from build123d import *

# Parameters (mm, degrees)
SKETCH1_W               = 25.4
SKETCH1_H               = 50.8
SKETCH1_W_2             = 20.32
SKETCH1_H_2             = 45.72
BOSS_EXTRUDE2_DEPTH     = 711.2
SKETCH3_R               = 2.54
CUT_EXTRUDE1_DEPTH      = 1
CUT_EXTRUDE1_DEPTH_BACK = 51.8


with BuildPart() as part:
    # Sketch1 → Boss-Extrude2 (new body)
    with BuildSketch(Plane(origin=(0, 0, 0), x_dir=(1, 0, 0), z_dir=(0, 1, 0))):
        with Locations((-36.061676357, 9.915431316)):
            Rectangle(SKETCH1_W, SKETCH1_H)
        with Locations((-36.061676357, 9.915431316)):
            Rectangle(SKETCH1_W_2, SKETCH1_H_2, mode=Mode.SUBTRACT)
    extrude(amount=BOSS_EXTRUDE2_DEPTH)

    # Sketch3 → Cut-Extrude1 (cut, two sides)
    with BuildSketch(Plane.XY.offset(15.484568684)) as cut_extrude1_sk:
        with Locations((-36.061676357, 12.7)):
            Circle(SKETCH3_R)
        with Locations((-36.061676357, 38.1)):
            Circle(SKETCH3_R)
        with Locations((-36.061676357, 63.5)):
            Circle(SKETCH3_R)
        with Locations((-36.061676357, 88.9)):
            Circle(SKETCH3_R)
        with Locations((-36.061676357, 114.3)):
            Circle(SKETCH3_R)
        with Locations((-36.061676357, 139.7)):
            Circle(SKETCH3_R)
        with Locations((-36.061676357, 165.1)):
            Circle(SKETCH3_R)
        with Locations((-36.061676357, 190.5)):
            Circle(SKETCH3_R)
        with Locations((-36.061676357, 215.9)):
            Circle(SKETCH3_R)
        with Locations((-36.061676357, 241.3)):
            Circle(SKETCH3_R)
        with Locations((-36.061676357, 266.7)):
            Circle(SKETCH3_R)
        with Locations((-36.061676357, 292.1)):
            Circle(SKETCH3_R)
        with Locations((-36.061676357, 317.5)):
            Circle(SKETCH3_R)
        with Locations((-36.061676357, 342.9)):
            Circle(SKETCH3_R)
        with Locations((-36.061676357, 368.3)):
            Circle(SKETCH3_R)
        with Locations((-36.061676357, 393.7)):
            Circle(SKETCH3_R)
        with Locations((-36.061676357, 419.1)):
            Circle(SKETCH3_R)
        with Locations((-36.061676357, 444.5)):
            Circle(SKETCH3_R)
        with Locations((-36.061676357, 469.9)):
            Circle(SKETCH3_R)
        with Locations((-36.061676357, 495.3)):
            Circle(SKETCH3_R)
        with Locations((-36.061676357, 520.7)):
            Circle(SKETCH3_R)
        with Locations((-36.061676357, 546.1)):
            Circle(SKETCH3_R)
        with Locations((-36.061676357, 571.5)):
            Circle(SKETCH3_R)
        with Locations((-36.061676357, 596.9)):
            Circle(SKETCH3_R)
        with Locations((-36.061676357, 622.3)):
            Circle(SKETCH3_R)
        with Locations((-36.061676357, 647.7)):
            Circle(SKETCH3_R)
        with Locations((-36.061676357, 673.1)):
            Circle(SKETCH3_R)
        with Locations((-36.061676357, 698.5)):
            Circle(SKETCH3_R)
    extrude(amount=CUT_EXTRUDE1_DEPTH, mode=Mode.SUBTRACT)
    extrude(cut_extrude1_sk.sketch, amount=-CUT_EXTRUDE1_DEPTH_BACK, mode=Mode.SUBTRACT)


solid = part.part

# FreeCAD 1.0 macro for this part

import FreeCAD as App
import Part
import Sketcher

V = App.Vector
Q = App.Units.Quantity

doc = App.newDocument("Part")
body = doc.addObject("PartDesign::Body", "Body")

sketch1 = body.newObject("Sketcher::SketchObject", "Sketch")
sketch1.AttachmentSupport = (doc.getObject("XZ_Plane"), [""])
sketch1.MapMode = "FlatFace"
sketch1.addGeometry(Part.LineSegment(V(-49, -35, 0), V(-49, 15, 0)), False)
sketch1.addGeometry(Part.LineSegment(V(-49, 15, 0), V(-23, 15, 0)), False)
sketch1.addGeometry(Part.LineSegment(V(-23, 15, 0), V(-23, -35, 0)), False)
sketch1.addGeometry(Part.LineSegment(V(-23, -35, 0), V(-49, -35, 0)), False)
sketch1.addGeometry(Part.LineSegment(V(-26, 13, 0), V(-46, 13, 0)), False)
sketch1.addGeometry(Part.LineSegment(V(-46, 13, 0), V(-46, -33, 0)), False)
sketch1.addGeometry(Part.LineSegment(V(-46, -33, 0), V(-26, -33, 0)), False)
sketch1.addGeometry(Part.LineSegment(V(-26, -33, 0), V(-26, 13, 0)), False)
sketch1.addConstraint(Sketcher.Constraint("Coincident", 0, 2, 1, 1))
sketch1.addConstraint(Sketcher.Constraint("Coincident", 1, 2, 2, 1))
sketch1.addConstraint(Sketcher.Constraint("Coincident", 2, 2, 3, 1))
sketch1.addConstraint(Sketcher.Constraint("Coincident", 3, 2, 0, 1))
sketch1.addConstraint(Sketcher.Constraint("Coincident", 4, 2, 5, 1))
sketch1.addConstraint(Sketcher.Constraint("Coincident", 5, 2, 6, 1))
sketch1.addConstraint(Sketcher.Constraint("Coincident", 6, 2, 7, 1))
sketch1.addConstraint(Sketcher.Constraint("Coincident", 7, 2, 4, 1))
sketch1.addConstraint(Sketcher.Constraint("Vertical", 0))
sketch1.addConstraint(Sketcher.Constraint("Horizontal", 1))
sketch1.addConstraint(Sketcher.Constraint("Vertical", 2))
sketch1.addConstraint(Sketcher.Constraint("Horizontal", 3))
sketch1.addConstraint(Sketcher.Constraint("Horizontal", 4))
sketch1.addConstraint(Sketcher.Constraint("Vertical", 5))
sketch1.addConstraint(Sketcher.Constraint("Horizontal", 6))
sketch1.addConstraint(Sketcher.Constraint("Vertical", 7))
sketch1.addConstraint(Sketcher.Constraint("DistanceX", 1, 1, 1, 2, Q("1 in")))
sketch1.addConstraint(Sketcher.Constraint("DistanceY", 0, 1, 0, 2, Q("2 in")))
sketch1.addConstraint(Sketcher.Constraint("DistanceX", 4, 2, 4, 1, Q("0.8 in")))
sketch1.addConstraint(Sketcher.Constraint("DistanceY", 5, 2, 5, 1, Q("1.8 in")))
sketch1.addConstraint(Sketcher.Constraint("DistanceX", 0, 2, 4, 2, Q("0.1 in")))
sketch1.addConstraint(Sketcher.Constraint("DistanceY", 4, 2, 0, 2, Q("0.1 in")))
sketch1.addConstraint(Sketcher.Constraint("DistanceY", -1, 1, 0, 2, Q("15.484569 mm")))
sketch1.addConstraint(Sketcher.Constraint("DistanceX", 0, 2, -1, 1, Q("48.761676 mm")))
pad1 = body.newObject("PartDesign::Pad", "Pad")
pad1.Profile = sketch1
pad1.Length = Q("28 in")
pad1.Reversed = True

sketch2 = body.newObject("Sketcher::SketchObject", "Sketch001")
sketch2.AttachmentSupport = (doc.getObject("XY_Plane"), [""])
sketch2.MapMode = "FlatFace"
sketch2.AttachmentOffset = App.Placement(V(0, 0, 15.484569), App.Rotation())
sketch2.addGeometry(Part.Circle(V(-36.1, 12.7, 0), V(0, 0, 1), 2.5), False)
sketch2.addGeometry(Part.Circle(V(-36.1, 38.1, 0), V(0, 0, 1), 2.5), False)
sketch2.addGeometry(Part.Circle(V(-36.1, 63.5, 0), V(0, 0, 1), 2.5), False)
sketch2.addGeometry(Part.Circle(V(-36.1, 88.9, 0), V(0, 0, 1), 2.5), False)
sketch2.addGeometry(Part.Circle(V(-36.1, 114.3, 0), V(0, 0, 1), 2.5), False)
sketch2.addGeometry(Part.Circle(V(-36.1, 139.7, 0), V(0, 0, 1), 2.5), False)
sketch2.addGeometry(Part.Circle(V(-36.1, 165.1, 0), V(0, 0, 1), 2.5), False)
sketch2.addGeometry(Part.Circle(V(-36.1, 190.5, 0), V(0, 0, 1), 2.5), False)
sketch2.addGeometry(Part.Circle(V(-36.1, 215.9, 0), V(0, 0, 1), 2.5), False)
sketch2.addGeometry(Part.Circle(V(-36.1, 241.3, 0), V(0, 0, 1), 2.5), False)
sketch2.addGeometry(Part.Circle(V(-36.1, 266.7, 0), V(0, 0, 1), 2.5), False)
sketch2.addGeometry(Part.Circle(V(-36.1, 292.1, 0), V(0, 0, 1), 2.5), False)
sketch2.addGeometry(Part.Circle(V(-36.1, 317.5, 0), V(0, 0, 1), 2.5), False)
sketch2.addGeometry(Part.Circle(V(-36.1, 342.9, 0), V(0, 0, 1), 2.5), False)
sketch2.addGeometry(Part.Circle(V(-36.1, 368.3, 0), V(0, 0, 1), 2.5), False)
sketch2.addGeometry(Part.Circle(V(-36.1, 393.7, 0), V(0, 0, 1), 2.5), False)
sketch2.addGeometry(Part.Circle(V(-36.1, 419.1, 0), V(0, 0, 1), 2.5), False)
sketch2.addGeometry(Part.Circle(V(-36.1, 444.5, 0), V(0, 0, 1), 2.5), False)
sketch2.addGeometry(Part.Circle(V(-36.1, 469.9, 0), V(0, 0, 1), 2.5), False)
sketch2.addGeometry(Part.Circle(V(-36.1, 495.3, 0), V(0, 0, 1), 2.5), False)
sketch2.addGeometry(Part.Circle(V(-36.1, 520.7, 0), V(0, 0, 1), 2.5), False)
sketch2.addGeometry(Part.Circle(V(-36.1, 546.1, 0), V(0, 0, 1), 2.5), False)
sketch2.addGeometry(Part.Circle(V(-36.1, 571.5, 0), V(0, 0, 1), 2.5), False)
sketch2.addGeometry(Part.Circle(V(-36.1, 596.9, 0), V(0, 0, 1), 2.5), False)
sketch2.addGeometry(Part.Circle(V(-36.1, 622.3, 0), V(0, 0, 1), 2.5), False)
sketch2.addGeometry(Part.Circle(V(-36.1, 647.7, 0), V(0, 0, 1), 2.5), False)
sketch2.addGeometry(Part.Circle(V(-36.1, 673.1, 0), V(0, 0, 1), 2.5), False)
sketch2.addGeometry(Part.Circle(V(-36.1, 698.5, 0), V(0, 0, 1), 2.5), False)
sketch2.addConstraint(Sketcher.Constraint("Equal", 0, 1))
sketch2.addConstraint(Sketcher.Constraint("Equal", 1, 2))
sketch2.addConstraint(Sketcher.Constraint("Equal", 2, 3))
sketch2.addConstraint(Sketcher.Constraint("Equal", 3, 4))
sketch2.addConstraint(Sketcher.Constraint("Equal", 4, 5))
sketch2.addConstraint(Sketcher.Constraint("Equal", 5, 6))
sketch2.addConstraint(Sketcher.Constraint("Equal", 6, 7))
sketch2.addConstraint(Sketcher.Constraint("Equal", 7, 8))
sketch2.addConstraint(Sketcher.Constraint("Equal", 8, 9))
sketch2.addConstraint(Sketcher.Constraint("Equal", 9, 10))
sketch2.addConstraint(Sketcher.Constraint("Equal", 10, 11))
sketch2.addConstraint(Sketcher.Constraint("Equal", 11, 12))
sketch2.addConstraint(Sketcher.Constraint("Equal", 12, 13))
sketch2.addConstraint(Sketcher.Constraint("Equal", 13, 14))
sketch2.addConstraint(Sketcher.Constraint("Equal", 14, 15))
sketch2.addConstraint(Sketcher.Constraint("Equal", 15, 16))
sketch2.addConstraint(Sketcher.Constraint("Equal", 16, 17))
sketch2.addConstraint(Sketcher.Constraint("Equal", 17, 18))
sketch2.addConstraint(Sketcher.Constraint("Equal", 18, 19))
sketch2.addConstraint(Sketcher.Constraint("Equal", 19, 20))
sketch2.addConstraint(Sketcher.Constraint("Equal", 20, 21))
sketch2.addConstraint(Sketcher.Constraint("Equal", 21, 22))
sketch2.addConstraint(Sketcher.Constraint("Equal", 22, 23))
sketch2.addConstraint(Sketcher.Constraint("Equal", 23, 24))
sketch2.addConstraint(Sketcher.Constraint("Equal", 24, 25))
sketch2.addConstraint(Sketcher.Constraint("Equal", 25, 26))
sketch2.addConstraint(Sketcher.Constraint("Equal", 26, 27))
sketch2.addConstraint(Sketcher.Constraint("Vertical", 0, 3, 1, 3))
sketch2.addConstraint(Sketcher.Constraint("Vertical", 1, 3, 2, 3))
sketch2.addConstraint(Sketcher.Constraint("Vertical", 2, 3, 3, 3))
sketch2.addConstraint(Sketcher.Constraint("Vertical", 3, 3, 4, 3))
sketch2.addConstraint(Sketcher.Constraint("Vertical", 4, 3, 5, 3))
sketch2.addConstraint(Sketcher.Constraint("Vertical", 5, 3, 6, 3))
sketch2.addConstraint(Sketcher.Constraint("Vertical", 6, 3, 7, 3))
sketch2.addConstraint(Sketcher.Constraint("Vertical", 7, 3, 8, 3))
sketch2.addConstraint(Sketcher.Constraint("Vertical", 8, 3, 9, 3))
sketch2.addConstraint(Sketcher.Constraint("Vertical", 9, 3, 10, 3))
sketch2.addConstraint(Sketcher.Constraint("Vertical", 10, 3, 11, 3))
sketch2.addConstraint(Sketcher.Constraint("Vertical", 11, 3, 12, 3))
sketch2.addConstraint(Sketcher.Constraint("Vertical", 12, 3, 13, 3))
sketch2.addConstraint(Sketcher.Constraint("Vertical", 13, 3, 14, 3))
sketch2.addConstraint(Sketcher.Constraint("Vertical", 14, 3, 15, 3))
sketch2.addConstraint(Sketcher.Constraint("Vertical", 15, 3, 16, 3))
sketch2.addConstraint(Sketcher.Constraint("Vertical", 16, 3, 17, 3))
sketch2.addConstraint(Sketcher.Constraint("Vertical", 17, 3, 18, 3))
sketch2.addConstraint(Sketcher.Constraint("Vertical", 18, 3, 19, 3))
sketch2.addConstraint(Sketcher.Constraint("Vertical", 19, 3, 20, 3))
sketch2.addConstraint(Sketcher.Constraint("Vertical", 20, 3, 21, 3))
sketch2.addConstraint(Sketcher.Constraint("Vertical", 21, 3, 22, 3))
sketch2.addConstraint(Sketcher.Constraint("Vertical", 22, 3, 23, 3))
sketch2.addConstraint(Sketcher.Constraint("Vertical", 23, 3, 24, 3))
sketch2.addConstraint(Sketcher.Constraint("Vertical", 24, 3, 25, 3))
sketch2.addConstraint(Sketcher.Constraint("Vertical", 25, 3, 26, 3))
sketch2.addConstraint(Sketcher.Constraint("Vertical", 26, 3, 27, 3))
sketch2.addConstraint(Sketcher.Constraint("Diameter", 0, Q("0.2 in")))
sketch2.addConstraint(Sketcher.Constraint("DistanceY", 0, 3, 1, 3, Q("1 in")))
sketch2.addConstraint(Sketcher.Constraint("DistanceY", 1, 3, 2, 3, Q("1 in")))
sketch2.addConstraint(Sketcher.Constraint("DistanceY", 2, 3, 3, 3, Q("1 in")))
sketch2.addConstraint(Sketcher.Constraint("DistanceY", 3, 3, 4, 3, Q("1 in")))
sketch2.addConstraint(Sketcher.Constraint("DistanceY", 4, 3, 5, 3, Q("1 in")))
sketch2.addConstraint(Sketcher.Constraint("DistanceY", 5, 3, 6, 3, Q("1 in")))
sketch2.addConstraint(Sketcher.Constraint("DistanceY", 6, 3, 7, 3, Q("1 in")))
sketch2.addConstraint(Sketcher.Constraint("DistanceY", 7, 3, 8, 3, Q("1 in")))
sketch2.addConstraint(Sketcher.Constraint("DistanceY", 8, 3, 9, 3, Q("1 in")))
sketch2.addConstraint(Sketcher.Constraint("DistanceY", 9, 3, 10, 3, Q("1 in")))
sketch2.addConstraint(Sketcher.Constraint("DistanceY", 10, 3, 11, 3, Q("1 in")))
sketch2.addConstraint(Sketcher.Constraint("DistanceY", 11, 3, 12, 3, Q("1 in")))
sketch2.addConstraint(Sketcher.Constraint("DistanceY", 12, 3, 13, 3, Q("1 in")))
sketch2.addConstraint(Sketcher.Constraint("DistanceY", 13, 3, 14, 3, Q("1 in")))
sketch2.addConstraint(Sketcher.Constraint("DistanceY", 14, 3, 15, 3, Q("1 in")))
sketch2.addConstraint(Sketcher.Constraint("DistanceY", 15, 3, 16, 3, Q("1 in")))
sketch2.addConstraint(Sketcher.Constraint("DistanceY", 16, 3, 17, 3, Q("1 in")))
sketch2.addConstraint(Sketcher.Constraint("DistanceY", 17, 3, 18, 3, Q("1 in")))
sketch2.addConstraint(Sketcher.Constraint("DistanceY", 18, 3, 19, 3, Q("1 in")))
sketch2.addConstraint(Sketcher.Constraint("DistanceY", 19, 3, 20, 3, Q("1 in")))
sketch2.addConstraint(Sketcher.Constraint("DistanceY", 20, 3, 21, 3, Q("1 in")))
sketch2.addConstraint(Sketcher.Constraint("DistanceY", 21, 3, 22, 3, Q("1 in")))
sketch2.addConstraint(Sketcher.Constraint("DistanceY", 22, 3, 23, 3, Q("1 in")))
sketch2.addConstraint(Sketcher.Constraint("DistanceY", 23, 3, 24, 3, Q("1 in")))
sketch2.addConstraint(Sketcher.Constraint("DistanceY", 24, 3, 25, 3, Q("1 in")))
sketch2.addConstraint(Sketcher.Constraint("DistanceY", 25, 3, 26, 3, Q("1 in")))
sketch2.addConstraint(Sketcher.Constraint("DistanceY", 26, 3, 27, 3, Q("1 in")))
sketch2.addConstraint(Sketcher.Constraint("DistanceY", -1, 1, 0, 3, Q("0.5 in")))
sketch2.addConstraint(Sketcher.Constraint("DistanceX", 0, 3, -1, 1, Q("36.061676 mm")))
pocket1 = body.newObject("PartDesign::Pocket", "Pocket")
pocket1.Profile = sketch2
pocket1.Type = "ThroughAll"
pocket1.Midplane = True

doc.recompute()
